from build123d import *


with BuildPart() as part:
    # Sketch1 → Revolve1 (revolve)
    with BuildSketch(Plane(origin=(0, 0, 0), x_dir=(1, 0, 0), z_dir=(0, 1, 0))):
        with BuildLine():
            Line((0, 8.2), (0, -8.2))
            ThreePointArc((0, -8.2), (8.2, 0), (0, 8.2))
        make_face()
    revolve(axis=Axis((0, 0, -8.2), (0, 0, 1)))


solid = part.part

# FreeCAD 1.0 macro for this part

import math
import FreeCAD as App
import Part
import Sketcher

doc = App.newDocument("Part")
body = doc.addObject("PartDesign::Body", "Body")

# Sketch on XZ plane
sketch1 = doc.addObject("Sketcher::SketchObject", "Sketch")
body.addObject(sketch1)
sketch1.AttachmentSupport = (doc.XZ_Plane, [""])
sketch1.MapMode = "FlatFace"
sketch1.addGeometry([
    Part.LineSegment(App.Vector(0, -8.2, 0), App.Vector(0, 8.2, 0)),
    Part.ArcOfCircle(Part.Circle(App.Vector(0, 0, 0), App.Vector(0, 0, 1), 8.2), math.radians(-90), math.radians(90)),
], False)
sketch1.addConstraint([
    Sketcher.Constraint("Coincident", 0, 1, 1, 1),
    Sketcher.Constraint("Coincident", 1, 2, 0, 2),
    Sketcher.Constraint("Vertical", 0),
    Sketcher.Constraint("Coincident", 1, 3, -1, 1),
    Sketcher.Constraint("PointOnObject", 0, 1, -2),
    Sketcher.Constraint("Radius", 1, 8.2),
])
revolution = doc.addObject("PartDesign::Revolution", "Revolution")
body.addObject(revolution)
revolution.Profile = sketch1
revolution.ReferenceAxis = (sketch1, ["V_Axis"])
revolution.Angle = 360

doc.recompute()
